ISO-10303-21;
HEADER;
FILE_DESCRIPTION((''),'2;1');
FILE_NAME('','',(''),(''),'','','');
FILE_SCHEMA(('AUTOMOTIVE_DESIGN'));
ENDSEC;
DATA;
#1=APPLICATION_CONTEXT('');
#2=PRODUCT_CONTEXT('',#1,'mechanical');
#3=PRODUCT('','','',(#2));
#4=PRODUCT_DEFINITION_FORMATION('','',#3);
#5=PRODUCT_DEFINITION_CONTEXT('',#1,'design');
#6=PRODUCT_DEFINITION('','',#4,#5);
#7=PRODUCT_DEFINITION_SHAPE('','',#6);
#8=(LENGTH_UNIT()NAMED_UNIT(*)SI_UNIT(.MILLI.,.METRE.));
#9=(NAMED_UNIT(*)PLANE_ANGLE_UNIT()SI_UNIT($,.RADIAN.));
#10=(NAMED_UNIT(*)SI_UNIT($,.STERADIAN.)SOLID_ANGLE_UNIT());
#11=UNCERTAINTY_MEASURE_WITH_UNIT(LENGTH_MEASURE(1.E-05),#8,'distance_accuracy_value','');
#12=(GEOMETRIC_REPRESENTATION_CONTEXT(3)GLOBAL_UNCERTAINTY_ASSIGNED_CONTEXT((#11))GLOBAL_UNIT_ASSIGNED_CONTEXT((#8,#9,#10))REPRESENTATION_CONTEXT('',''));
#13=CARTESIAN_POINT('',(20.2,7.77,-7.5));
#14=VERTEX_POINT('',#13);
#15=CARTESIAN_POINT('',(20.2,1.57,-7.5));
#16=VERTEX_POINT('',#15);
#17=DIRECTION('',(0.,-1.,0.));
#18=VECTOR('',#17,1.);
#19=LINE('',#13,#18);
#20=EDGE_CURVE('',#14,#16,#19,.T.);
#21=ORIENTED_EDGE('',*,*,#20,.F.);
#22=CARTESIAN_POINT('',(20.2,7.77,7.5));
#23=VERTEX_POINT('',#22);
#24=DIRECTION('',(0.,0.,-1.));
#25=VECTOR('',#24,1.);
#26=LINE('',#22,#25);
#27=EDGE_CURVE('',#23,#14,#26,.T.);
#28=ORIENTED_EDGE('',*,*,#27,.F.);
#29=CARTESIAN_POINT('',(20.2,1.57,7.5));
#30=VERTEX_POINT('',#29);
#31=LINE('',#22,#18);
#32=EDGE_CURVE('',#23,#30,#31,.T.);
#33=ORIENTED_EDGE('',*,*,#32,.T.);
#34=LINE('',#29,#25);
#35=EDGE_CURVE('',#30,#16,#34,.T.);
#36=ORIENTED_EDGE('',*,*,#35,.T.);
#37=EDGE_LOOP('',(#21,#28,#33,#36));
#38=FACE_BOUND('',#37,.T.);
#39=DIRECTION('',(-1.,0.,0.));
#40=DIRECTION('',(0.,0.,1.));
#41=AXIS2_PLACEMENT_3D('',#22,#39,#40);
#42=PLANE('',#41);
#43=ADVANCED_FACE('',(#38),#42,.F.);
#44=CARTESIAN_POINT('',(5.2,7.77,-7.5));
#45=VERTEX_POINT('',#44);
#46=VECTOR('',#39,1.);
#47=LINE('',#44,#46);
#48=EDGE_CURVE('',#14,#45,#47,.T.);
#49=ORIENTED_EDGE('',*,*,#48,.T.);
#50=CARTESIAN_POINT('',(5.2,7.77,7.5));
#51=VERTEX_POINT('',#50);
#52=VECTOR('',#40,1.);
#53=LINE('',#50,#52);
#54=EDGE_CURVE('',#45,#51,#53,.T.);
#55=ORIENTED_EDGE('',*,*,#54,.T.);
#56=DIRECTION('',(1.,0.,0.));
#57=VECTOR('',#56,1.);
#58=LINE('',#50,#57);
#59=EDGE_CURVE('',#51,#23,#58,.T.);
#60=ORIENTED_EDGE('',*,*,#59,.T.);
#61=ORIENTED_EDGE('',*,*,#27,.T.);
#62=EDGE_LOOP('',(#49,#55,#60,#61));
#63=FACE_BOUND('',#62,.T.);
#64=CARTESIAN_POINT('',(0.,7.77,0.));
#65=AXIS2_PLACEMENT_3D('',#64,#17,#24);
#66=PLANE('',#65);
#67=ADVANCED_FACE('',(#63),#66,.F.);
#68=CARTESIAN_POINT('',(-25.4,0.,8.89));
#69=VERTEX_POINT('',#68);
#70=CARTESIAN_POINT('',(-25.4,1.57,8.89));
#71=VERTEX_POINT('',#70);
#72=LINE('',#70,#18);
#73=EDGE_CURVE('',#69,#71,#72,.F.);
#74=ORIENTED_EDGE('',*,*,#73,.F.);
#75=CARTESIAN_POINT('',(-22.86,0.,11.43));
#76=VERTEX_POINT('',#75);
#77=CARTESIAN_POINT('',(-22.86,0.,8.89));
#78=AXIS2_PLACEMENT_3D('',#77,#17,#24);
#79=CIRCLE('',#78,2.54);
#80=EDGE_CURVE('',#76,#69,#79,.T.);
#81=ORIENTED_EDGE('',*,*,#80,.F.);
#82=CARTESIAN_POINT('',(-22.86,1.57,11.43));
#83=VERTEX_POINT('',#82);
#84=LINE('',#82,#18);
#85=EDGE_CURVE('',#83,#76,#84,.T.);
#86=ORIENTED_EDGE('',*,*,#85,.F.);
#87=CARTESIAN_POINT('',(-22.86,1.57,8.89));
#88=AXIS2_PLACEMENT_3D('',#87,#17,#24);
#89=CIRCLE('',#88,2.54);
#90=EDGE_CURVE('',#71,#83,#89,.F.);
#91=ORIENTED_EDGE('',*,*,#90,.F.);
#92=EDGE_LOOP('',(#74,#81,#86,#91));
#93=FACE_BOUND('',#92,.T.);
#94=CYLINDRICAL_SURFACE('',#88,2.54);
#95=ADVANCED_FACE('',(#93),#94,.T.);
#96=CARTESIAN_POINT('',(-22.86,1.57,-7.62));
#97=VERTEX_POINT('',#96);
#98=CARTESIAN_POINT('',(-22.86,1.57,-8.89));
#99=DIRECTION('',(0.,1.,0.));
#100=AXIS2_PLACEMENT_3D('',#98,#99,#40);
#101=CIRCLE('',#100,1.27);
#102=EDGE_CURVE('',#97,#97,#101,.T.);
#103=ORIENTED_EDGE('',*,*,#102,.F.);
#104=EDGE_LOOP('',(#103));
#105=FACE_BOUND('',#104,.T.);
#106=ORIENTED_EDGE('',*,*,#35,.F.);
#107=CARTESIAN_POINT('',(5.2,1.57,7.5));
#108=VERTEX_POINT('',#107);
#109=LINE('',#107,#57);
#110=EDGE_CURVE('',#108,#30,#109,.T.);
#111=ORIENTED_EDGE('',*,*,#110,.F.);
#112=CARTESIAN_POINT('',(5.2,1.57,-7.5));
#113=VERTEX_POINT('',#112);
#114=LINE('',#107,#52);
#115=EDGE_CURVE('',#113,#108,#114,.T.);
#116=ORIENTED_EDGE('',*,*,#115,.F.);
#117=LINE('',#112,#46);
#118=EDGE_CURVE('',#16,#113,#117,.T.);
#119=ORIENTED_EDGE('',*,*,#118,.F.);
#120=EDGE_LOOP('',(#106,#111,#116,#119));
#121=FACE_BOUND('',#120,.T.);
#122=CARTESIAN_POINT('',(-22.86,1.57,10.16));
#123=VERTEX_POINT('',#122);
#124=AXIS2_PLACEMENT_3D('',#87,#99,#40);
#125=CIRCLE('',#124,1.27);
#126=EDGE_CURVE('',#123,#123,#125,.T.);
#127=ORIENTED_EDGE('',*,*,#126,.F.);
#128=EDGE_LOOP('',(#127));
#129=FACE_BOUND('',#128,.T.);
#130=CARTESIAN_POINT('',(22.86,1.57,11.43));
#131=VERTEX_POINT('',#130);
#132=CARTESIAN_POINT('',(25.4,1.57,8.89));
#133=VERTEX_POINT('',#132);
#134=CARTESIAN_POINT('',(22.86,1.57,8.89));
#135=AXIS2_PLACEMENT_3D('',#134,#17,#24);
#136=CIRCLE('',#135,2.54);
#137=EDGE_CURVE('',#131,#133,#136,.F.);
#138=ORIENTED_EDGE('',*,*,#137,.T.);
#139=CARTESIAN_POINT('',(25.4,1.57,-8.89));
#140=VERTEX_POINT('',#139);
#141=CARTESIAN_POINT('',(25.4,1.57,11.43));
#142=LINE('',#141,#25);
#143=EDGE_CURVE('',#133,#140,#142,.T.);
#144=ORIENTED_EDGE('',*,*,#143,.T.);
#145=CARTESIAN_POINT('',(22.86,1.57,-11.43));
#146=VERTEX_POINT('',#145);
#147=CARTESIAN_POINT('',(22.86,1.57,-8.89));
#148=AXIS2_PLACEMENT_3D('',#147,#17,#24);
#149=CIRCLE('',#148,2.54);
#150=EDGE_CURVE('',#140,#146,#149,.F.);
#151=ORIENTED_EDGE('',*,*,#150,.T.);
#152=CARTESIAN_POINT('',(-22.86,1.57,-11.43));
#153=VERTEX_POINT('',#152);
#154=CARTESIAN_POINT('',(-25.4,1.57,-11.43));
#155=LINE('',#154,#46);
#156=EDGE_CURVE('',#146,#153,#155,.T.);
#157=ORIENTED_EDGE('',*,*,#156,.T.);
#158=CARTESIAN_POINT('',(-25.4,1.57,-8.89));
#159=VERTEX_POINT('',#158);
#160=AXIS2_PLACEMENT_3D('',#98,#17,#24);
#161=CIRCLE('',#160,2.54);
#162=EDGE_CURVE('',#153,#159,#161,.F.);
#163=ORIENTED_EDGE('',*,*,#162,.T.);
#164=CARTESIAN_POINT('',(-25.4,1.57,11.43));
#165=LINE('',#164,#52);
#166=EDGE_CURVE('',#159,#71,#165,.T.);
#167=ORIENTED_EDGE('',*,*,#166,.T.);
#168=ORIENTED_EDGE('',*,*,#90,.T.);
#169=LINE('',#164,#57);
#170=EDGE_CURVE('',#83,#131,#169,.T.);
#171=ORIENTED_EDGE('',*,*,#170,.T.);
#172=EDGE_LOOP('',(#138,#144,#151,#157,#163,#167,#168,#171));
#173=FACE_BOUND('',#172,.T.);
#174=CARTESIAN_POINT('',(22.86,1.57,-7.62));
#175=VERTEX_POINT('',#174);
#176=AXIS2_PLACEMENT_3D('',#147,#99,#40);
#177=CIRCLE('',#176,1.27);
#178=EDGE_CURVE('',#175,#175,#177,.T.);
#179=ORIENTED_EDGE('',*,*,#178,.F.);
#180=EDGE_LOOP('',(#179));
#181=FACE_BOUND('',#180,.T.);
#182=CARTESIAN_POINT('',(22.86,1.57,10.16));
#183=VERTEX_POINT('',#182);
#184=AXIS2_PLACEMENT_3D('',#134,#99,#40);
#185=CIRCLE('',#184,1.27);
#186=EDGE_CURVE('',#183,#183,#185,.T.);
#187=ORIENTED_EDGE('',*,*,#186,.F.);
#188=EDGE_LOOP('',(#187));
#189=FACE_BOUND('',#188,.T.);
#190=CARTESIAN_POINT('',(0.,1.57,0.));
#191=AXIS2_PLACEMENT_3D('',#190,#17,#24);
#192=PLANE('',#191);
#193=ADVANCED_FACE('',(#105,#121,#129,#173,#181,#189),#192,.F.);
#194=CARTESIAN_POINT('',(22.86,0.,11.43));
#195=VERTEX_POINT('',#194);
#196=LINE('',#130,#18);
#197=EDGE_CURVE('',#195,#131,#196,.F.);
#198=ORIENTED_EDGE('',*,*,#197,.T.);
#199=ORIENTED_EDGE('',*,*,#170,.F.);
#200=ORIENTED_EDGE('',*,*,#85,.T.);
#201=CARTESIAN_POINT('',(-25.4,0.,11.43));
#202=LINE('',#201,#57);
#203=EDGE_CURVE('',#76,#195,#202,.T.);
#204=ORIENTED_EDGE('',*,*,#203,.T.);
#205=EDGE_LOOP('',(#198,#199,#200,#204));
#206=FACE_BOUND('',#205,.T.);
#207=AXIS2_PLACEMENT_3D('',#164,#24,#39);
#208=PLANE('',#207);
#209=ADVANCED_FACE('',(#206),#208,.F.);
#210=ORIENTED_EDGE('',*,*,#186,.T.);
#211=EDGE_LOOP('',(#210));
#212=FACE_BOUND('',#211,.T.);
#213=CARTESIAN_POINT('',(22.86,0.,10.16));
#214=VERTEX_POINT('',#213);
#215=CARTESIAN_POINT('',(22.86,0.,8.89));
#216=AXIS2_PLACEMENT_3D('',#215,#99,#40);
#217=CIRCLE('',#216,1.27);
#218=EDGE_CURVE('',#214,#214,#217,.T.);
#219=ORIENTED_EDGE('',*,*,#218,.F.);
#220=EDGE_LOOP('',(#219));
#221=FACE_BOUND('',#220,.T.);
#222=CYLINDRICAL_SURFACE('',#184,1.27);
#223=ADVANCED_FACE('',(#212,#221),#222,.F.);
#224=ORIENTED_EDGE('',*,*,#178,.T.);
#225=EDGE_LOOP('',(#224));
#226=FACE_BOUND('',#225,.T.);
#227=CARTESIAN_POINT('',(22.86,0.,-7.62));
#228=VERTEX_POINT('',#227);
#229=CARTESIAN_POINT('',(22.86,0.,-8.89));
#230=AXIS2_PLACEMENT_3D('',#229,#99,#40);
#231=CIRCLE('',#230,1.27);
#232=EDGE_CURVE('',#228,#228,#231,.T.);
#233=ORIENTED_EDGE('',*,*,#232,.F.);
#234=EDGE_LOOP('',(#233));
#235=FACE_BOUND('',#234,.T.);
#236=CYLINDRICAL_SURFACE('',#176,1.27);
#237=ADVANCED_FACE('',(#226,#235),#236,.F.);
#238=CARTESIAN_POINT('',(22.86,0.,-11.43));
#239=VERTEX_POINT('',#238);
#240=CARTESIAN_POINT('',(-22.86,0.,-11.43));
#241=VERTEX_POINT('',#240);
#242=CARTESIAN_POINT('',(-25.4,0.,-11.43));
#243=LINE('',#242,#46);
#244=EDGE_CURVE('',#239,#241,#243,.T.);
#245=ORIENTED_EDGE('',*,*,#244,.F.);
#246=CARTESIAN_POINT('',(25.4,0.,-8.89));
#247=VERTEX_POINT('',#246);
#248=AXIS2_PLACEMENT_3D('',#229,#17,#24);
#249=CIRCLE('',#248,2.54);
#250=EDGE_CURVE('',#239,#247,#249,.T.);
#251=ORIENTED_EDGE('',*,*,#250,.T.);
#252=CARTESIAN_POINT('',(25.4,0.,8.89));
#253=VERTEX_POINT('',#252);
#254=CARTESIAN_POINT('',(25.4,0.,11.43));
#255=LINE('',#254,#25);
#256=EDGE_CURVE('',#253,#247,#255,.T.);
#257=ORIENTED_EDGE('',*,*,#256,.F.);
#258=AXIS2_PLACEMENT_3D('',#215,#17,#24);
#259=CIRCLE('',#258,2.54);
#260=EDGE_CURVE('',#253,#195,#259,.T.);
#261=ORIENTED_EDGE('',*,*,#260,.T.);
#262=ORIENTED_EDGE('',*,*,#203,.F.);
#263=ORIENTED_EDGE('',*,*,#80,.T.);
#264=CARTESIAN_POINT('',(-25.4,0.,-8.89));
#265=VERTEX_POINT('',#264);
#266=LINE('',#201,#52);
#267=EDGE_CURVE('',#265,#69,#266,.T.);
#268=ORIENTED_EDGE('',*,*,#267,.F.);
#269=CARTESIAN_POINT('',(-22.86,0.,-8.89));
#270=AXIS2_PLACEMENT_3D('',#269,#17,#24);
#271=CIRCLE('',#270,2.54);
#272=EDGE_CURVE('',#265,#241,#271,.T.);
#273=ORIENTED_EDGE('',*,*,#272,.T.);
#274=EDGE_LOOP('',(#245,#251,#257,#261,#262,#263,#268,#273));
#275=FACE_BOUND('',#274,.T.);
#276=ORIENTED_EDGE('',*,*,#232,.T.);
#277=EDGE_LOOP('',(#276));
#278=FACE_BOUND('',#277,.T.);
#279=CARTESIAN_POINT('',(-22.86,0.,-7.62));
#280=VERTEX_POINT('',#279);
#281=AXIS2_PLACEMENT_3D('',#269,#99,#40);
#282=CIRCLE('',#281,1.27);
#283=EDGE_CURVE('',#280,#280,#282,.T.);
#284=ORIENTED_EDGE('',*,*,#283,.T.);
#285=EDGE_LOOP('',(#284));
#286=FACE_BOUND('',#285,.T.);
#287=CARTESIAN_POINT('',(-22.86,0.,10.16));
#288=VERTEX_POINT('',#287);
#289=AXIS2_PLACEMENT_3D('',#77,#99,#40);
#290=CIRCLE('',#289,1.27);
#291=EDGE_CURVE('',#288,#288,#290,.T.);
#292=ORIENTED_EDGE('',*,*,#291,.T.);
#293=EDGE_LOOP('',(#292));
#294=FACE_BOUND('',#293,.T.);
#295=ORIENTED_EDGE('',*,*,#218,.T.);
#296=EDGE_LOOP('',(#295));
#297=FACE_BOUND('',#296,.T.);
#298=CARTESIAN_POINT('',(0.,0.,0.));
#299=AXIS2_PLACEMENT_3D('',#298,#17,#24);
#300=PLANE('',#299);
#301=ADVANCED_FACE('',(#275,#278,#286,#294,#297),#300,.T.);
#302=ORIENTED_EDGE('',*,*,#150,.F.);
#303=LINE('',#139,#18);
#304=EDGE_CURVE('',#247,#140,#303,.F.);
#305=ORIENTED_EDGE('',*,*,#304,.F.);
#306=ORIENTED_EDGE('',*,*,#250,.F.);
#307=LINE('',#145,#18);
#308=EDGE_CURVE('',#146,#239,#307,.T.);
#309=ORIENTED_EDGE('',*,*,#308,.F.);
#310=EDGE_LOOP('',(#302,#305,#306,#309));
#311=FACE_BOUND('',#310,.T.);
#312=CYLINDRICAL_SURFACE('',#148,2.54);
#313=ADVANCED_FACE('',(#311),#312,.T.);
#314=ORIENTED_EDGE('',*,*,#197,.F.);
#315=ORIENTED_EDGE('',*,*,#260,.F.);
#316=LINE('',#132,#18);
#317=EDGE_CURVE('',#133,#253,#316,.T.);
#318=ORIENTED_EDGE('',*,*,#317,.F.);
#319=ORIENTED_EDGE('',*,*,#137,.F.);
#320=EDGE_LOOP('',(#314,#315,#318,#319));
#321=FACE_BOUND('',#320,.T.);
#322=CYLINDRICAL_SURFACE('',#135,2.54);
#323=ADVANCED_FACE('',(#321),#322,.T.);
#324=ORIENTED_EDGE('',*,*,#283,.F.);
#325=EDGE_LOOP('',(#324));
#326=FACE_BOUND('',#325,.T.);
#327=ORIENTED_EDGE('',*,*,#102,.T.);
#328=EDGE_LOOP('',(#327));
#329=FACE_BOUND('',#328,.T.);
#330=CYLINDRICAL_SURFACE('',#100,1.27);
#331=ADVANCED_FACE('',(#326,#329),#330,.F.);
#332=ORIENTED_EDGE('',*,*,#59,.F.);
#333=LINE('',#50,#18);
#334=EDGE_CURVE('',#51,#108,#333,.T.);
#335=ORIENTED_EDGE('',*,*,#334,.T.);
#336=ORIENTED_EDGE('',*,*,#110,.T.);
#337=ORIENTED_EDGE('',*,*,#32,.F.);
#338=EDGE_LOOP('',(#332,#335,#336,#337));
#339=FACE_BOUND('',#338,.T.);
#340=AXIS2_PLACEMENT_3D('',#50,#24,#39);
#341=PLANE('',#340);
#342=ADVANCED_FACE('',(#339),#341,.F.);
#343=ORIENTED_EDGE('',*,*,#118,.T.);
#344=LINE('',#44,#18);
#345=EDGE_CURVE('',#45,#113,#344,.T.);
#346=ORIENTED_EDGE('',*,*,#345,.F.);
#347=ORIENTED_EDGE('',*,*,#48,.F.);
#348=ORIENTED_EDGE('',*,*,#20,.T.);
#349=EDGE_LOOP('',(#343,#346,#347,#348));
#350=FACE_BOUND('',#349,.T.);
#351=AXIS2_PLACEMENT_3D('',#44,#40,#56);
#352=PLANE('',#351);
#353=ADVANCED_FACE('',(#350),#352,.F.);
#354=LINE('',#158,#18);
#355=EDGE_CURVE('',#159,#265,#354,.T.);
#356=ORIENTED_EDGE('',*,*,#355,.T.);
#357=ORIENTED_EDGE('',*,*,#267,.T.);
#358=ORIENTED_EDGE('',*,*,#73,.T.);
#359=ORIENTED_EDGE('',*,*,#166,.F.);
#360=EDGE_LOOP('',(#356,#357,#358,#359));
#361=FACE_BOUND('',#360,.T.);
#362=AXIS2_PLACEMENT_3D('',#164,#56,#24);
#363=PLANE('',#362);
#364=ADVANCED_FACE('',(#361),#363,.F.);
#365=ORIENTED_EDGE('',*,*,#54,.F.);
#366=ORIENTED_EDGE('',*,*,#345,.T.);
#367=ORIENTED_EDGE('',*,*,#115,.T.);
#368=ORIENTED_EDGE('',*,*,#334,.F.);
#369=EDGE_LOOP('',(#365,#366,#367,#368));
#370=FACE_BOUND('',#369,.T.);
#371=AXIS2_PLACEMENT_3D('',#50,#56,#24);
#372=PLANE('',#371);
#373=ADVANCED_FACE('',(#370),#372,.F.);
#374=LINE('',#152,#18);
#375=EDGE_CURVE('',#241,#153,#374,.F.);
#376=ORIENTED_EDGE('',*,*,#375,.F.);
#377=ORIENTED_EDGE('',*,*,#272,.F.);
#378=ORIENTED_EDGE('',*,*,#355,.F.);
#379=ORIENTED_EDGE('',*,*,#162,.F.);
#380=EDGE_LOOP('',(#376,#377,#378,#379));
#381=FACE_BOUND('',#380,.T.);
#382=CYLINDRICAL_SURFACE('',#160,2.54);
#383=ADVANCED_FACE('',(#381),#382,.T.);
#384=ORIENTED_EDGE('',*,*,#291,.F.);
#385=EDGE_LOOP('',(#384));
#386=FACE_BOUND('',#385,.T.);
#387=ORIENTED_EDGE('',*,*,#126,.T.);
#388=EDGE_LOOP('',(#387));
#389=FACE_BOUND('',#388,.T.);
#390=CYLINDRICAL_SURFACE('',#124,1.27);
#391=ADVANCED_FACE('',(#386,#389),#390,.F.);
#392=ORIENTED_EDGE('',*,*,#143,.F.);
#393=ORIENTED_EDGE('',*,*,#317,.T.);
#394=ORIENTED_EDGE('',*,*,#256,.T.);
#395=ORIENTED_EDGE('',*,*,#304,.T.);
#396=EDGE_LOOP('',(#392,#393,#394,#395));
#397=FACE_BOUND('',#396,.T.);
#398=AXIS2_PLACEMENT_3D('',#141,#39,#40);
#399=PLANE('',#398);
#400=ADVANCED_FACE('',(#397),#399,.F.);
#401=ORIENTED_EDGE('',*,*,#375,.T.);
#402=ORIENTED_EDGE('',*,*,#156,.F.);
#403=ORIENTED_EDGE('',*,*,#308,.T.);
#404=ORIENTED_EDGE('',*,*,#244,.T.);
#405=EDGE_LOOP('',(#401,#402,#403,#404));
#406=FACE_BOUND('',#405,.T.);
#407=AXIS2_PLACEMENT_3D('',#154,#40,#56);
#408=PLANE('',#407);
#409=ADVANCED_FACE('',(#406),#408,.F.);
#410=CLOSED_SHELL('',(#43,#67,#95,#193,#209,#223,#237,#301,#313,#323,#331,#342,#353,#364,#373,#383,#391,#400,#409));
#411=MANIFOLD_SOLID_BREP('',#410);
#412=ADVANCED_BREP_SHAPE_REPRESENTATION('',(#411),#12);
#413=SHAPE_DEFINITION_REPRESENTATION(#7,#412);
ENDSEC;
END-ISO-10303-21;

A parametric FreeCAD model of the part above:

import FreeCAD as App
import Part
import Sketcher
from FreeCAD import Vector
Q = App.Units.Quantity


def edges_at(feature, points):
    """Names of the edges that pass closest to the given points."""
    edges = feature.Shape.Edges
    near = lambda p: min(range(len(edges)), key=lambda i: edges[i].distToShape(Part.Vertex(*p))[0])
    return sorted({f"Edge{near(p) + 1}" for p in points})


def add_polygon(sketch, points):
    """Adds a closed chain of lines whose ends are joined by coincident constraints."""
    first, n = sketch.GeometryCount, len(points)
    for a, b in zip(points, points[1:] + points[:1]):
        sketch.addGeometry(Part.LineSegment(App.Vector(*a, 0), App.Vector(*b, 0)), False)
    for i in range(n):
        sketch.addConstraint(Sketcher.Constraint("Coincident", first + i, 2, first + (i + 1) % n, 1))

doc = App.newDocument("Part")
body = doc.addObject("PartDesign::Body", "Body")

sketch1 = doc.addObject("Sketcher::SketchObject", "Sketch")
body.addObject(sketch1)
sketch1.AttachmentSupport = (doc.XZ_Plane, [""])
sketch1.MapMode = "FlatFace"
add_polygon(sketch1, [(-25.4, -11.43), (-25.4, 11.43), (25.4, 11.43), (25.4, -11.43)])
sketch1.addConstraint(Sketcher.Constraint("Vertical", 0))
sketch1.addConstraint(Sketcher.Constraint("Horizontal", 1))
sketch1.addConstraint(Sketcher.Constraint("Vertical", 2))
sketch1.addConstraint(Sketcher.Constraint("Horizontal", 3))
sketch1.addConstraint(Sketcher.Constraint("Symmetric", 0, 2, 2, 2, -1, 1))
sketch1.addConstraint(Sketcher.Constraint("DistanceX", 1, 1, 1, 2, Q("2 in")))
sketch1.addConstraint(Sketcher.Constraint("DistanceY", 0, 1, 0, 2, Q("0.9 in")))
pad1 = doc.addObject("PartDesign::Pad", "Pad")
body.addObject(pad1)
pad1.Profile = sketch1
pad1.Length = 1.57
pad1.Reversed = True

sketch2 = doc.addObject("Sketcher::SketchObject", "Sketch001")
body.addObject(sketch2)
sketch2.AttachmentSupport = (doc.XZ_Plane, [""])
sketch2.MapMode = "FlatFace"
sketch2.AttachmentOffset = App.Placement(Vector(0, 0, -1.57), App.Rotation())
sketch2.addGeometry(Part.Circle(Vector(-22.86, -8.89, 0), Vector(0, 0, 1), 1.27), False)
sketch2.addGeometry(Part.Circle(Vector(22.86, -8.89, 0), Vector(0, 0, 1), 1.27), False)
sketch2.addGeometry(Part.Circle(Vector(22.86, 8.89, 0), Vector(0, 0, 1), 1.27), False)
sketch2.addGeometry(Part.Circle(Vector(-22.86, 8.89, 0), Vector(0, 0, 1), 1.27), False)
sketch2.addConstraint(Sketcher.Constraint("Equal", 0, 1))
sketch2.addConstraint(Sketcher.Constraint("Equal", 1, 2))
sketch2.addConstraint(Sketcher.Constraint("Equal", 2, 3))
sketch2.addConstraint(Sketcher.Constraint("Symmetric", 0, 3, 2, 3, -1, 1))
sketch2.addConstraint(Sketcher.Constraint("Symmetric", 1, 3, 3, 3, -1, 1))
sketch2.addConstraint(Sketcher.Constraint("Symmetric", 0, 3, 1, 3, -2))
sketch2.addConstraint(Sketcher.Constraint("Diameter", 0, Q("0.1 in")))
sketch2.addConstraint(Sketcher.Constraint("DistanceX", 0, 3, -1, 1, Q("0.9 in")))
sketch2.addConstraint(Sketcher.Constraint("DistanceY", 1, 3, 2, 3, Q("0.7 in")))
doc.recompute()
hole = doc.addObject("PartDesign::Hole", "Hole")
body.addObject(hole)
hole.Profile = sketch2
hole.ThreadType = "None"
hole.Diameter = Q("0.1 in")
hole.DepthType = "ThroughAll"
hole.Reversed = True
doc.recompute()

fillet = doc.addObject("PartDesign::Fillet", "Fillet")
body.addObject(fillet)
fillet.Base = (hole, edges_at(hole, [
    (25.4, 0.785, 11.43),
    (-25.4, 0.785, 11.43),
    (-25.4, 0.785, -11.43),
    (25.4, 0.785, -11.43),
]))
fillet.Radius = Q("0.1 in")

sketch3 = doc.addObject("Sketcher::SketchObject", "Sketch002")
body.addObject(sketch3)
sketch3.AttachmentSupport = (doc.XZ_Plane, [""])
sketch3.MapMode = "FlatFace"
sketch3.AttachmentOffset = App.Placement(Vector(0, 0, -1.57), App.Rotation())
add_polygon(sketch3, [(5.2, -7.5), (5.2, 7.5), (20.2, 7.5), (20.2, -7.5)])
sketch3.addConstraint(Sketcher.Constraint("Vertical", 0))
sketch3.addConstraint(Sketcher.Constraint("Horizontal", 1))
sketch3.addConstraint(Sketcher.Constraint("Vertical", 2))
sketch3.addConstraint(Sketcher.Constraint("Horizontal", 3))
sketch3.addConstraint(Sketcher.Constraint("Equal", 3, 0))
sketch3.addConstraint(Sketcher.Constraint("DistanceX", 1, 1, 1, 2, 15.0))
sketch3.addConstraint(Sketcher.Constraint("DistanceX", -1, 1, 0, 2, 5.2))
sketch3.addConstraint(Sketcher.Constraint("DistanceY", -1, 1, 0, 2, 7.5))
pad2 = doc.addObject("PartDesign::Pad", "Pad001")
body.addObject(pad2)
pad2.Profile = sketch3
pad2.Length = 6.2
pad2.Reversed = True

doc.recompute()
